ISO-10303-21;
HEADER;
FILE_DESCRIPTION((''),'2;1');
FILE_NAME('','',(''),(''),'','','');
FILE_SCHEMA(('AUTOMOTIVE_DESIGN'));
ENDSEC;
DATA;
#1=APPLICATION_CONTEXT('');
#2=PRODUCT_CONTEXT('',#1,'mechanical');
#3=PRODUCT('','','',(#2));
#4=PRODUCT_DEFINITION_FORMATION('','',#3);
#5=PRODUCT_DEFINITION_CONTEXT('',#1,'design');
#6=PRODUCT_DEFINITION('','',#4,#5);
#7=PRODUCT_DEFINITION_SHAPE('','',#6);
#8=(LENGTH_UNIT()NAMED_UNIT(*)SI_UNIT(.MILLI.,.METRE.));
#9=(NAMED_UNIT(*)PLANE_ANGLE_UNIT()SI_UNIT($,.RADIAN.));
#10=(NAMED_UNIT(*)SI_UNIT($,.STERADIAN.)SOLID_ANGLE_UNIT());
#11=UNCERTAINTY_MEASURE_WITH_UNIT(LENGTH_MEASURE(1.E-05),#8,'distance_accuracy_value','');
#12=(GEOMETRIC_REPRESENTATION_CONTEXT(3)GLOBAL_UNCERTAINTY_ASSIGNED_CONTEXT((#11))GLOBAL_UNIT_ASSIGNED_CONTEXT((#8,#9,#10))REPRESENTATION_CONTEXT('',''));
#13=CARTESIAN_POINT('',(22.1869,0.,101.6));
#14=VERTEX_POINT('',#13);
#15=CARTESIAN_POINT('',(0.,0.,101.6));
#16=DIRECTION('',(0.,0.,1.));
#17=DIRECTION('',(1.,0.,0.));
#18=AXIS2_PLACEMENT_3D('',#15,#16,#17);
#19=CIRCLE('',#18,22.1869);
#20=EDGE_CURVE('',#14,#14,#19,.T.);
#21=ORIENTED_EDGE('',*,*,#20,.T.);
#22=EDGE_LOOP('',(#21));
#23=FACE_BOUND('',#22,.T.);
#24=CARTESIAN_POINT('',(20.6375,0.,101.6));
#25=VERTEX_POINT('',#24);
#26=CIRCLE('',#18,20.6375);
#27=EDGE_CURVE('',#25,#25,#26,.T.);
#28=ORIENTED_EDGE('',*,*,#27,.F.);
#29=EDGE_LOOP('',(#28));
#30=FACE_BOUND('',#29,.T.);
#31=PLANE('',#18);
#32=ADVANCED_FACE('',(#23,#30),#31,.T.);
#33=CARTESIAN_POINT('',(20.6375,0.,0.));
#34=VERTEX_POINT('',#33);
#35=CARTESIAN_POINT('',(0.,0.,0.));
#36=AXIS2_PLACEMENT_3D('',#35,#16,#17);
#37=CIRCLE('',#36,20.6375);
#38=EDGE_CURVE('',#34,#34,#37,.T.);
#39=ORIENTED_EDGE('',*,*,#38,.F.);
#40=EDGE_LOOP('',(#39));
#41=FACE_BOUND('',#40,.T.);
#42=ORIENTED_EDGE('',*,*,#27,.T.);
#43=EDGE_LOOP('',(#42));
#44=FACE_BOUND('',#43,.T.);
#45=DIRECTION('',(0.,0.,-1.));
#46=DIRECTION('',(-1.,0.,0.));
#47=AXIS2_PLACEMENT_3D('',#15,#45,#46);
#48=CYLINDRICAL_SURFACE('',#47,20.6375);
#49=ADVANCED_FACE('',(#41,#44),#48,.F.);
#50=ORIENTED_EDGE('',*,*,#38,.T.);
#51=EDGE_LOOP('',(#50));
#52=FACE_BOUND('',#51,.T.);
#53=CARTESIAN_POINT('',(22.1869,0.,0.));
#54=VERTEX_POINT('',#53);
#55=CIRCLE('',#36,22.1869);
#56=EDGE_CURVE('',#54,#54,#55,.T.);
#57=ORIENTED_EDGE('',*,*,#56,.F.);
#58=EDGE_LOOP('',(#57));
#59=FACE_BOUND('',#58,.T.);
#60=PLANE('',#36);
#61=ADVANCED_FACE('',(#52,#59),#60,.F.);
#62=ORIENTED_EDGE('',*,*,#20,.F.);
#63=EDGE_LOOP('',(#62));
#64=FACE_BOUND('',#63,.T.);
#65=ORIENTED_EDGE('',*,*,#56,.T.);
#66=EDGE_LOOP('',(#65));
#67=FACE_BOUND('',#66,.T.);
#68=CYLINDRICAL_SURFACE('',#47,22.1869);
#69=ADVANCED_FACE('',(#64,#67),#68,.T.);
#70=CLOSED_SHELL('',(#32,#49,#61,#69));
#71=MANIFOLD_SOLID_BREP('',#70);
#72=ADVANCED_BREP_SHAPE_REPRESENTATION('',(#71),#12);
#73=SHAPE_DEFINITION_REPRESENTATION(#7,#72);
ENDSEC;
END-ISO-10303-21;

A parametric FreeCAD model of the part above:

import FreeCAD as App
import Part
import Sketcher
Q = App.Units.Quantity

doc = App.newDocument("Part")
body = doc.addObject("PartDesign::Body", "Body")

sketch1 = body.newObject("Sketcher::SketchObject", "Sketch")
sketch1.AttachmentSupport = (doc.getObject("XY_Plane"), [""])
sketch1.MapMode = "FlatFace"
sketch1.addGeometry(Part.Circle(App.Vector(0, 0, 0), App.Vector(0, 0, 1), 22), False)
sketch1.addGeometry(Part.Circle(App.Vector(0, 0, 0), App.Vector(0, 0, 1), 21), False)
sketch1.addConstraint(Sketcher.Constraint("Coincident", 0, 3, -1, 1))
sketch1.addConstraint(Sketcher.Constraint("Coincident", 1, 3, -1, 1))
sketch1.addConstraint(Sketcher.Constraint("Diameter", 0, Q("1.747 in")))
sketch1.addConstraint(Sketcher.Constraint("Diameter", 1, Q("1.625 in")))
pad1 = body.newObject("PartDesign::Pad", "Pad")
pad1.Profile = sketch1
pad1.Length = Q("4 in")

doc.recompute()
